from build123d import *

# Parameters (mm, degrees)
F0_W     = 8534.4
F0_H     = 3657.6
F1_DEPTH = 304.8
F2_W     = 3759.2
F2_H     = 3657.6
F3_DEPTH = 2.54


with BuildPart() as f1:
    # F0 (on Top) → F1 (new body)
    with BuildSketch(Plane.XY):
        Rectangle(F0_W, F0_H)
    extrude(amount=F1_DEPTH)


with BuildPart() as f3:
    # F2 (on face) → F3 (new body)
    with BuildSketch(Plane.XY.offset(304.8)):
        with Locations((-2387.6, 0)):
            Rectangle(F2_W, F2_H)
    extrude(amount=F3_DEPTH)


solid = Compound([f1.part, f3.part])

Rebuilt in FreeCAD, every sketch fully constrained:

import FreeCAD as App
import Part
import Sketcher

V = App.Vector
Q = App.Units.Quantity


def add_polygon(sketch, points):
    """Adds a closed chain of lines whose ends are joined by coincident constraints."""
    first, n = sketch.GeometryCount, len(points)
    for a, b in zip(points, points[1:] + points[:1]):
        sketch.addGeometry(Part.LineSegment(App.Vector(*a, 0), App.Vector(*b, 0)), False)
    for i in range(n):
        sketch.addConstraint(Sketcher.Constraint("Coincident", first + i, 2, first + (i + 1) % n, 1))

doc = App.newDocument("Part")
params = doc.addObject("Spreadsheet::Sheet", "Params")
for row, (alias, value) in enumerate([
    ("sketch1_width", "336 in"),
    ("sketch1_height", "144 in"),
    ("pad1_length", "12 in"),
    ("sketch2_width", "148 in"),
    ("sketch2_height", "144 in"),
    ("pad2_length", "0.1 in"),
], start=1):
    params.set(f"A{row}", alias)
    params.set(f"B{row}", "=" + value)
    params.setAlias(f"B{row}", alias)

body = doc.addObject("PartDesign::Body", "Body")

# Sketch on XY plane
sketch1 = body.newObject("Sketcher::SketchObject", "Sketch")
sketch1.AttachmentSupport = (doc.getObject("XY_Plane"), [""])
sketch1.MapMode = "FlatFace"
add_polygon(sketch1, [(-4267.2, 1828.8), (-4267.2, -1828.8), (4267.2, -1828.8), (4267.2, 1828.8)])  # lines 0-3
sketch1.addConstraint([
    Sketcher.Constraint("Vertical", 0),
    Sketcher.Constraint("Horizontal", 1),
    Sketcher.Constraint("Vertical", 2),
    Sketcher.Constraint("Horizontal", 3),
    Sketcher.Constraint("Symmetric", 0, 2, 2, 2, -1, 1),
    Sketcher.Constraint("DistanceX", 1, 1, 1, 2, Q("336 in")),
    Sketcher.Constraint("DistanceY", 0, 2, 0, 1, Q("144 in")),
])
sketch1.setExpression("Constraints[9]", "Params.sketch1_width")
sketch1.setExpression("Constraints[10]", "Params.sketch1_height")
pad1 = body.newObject("PartDesign::Pad", "Pad")
pad1.Profile = sketch1
pad1.setExpression("Length", "Params.pad1_length")
body2 = doc.addObject("PartDesign::Body", "Body001")

# Sketch on XY plane
sketch2 = body2.newObject("Sketcher::SketchObject", "Sketch001")
sketch2.AttachmentSupport = (doc.getObject("XY_Plane001"), [""])
sketch2.MapMode = "FlatFace"
sketch2.AttachmentOffset = App.Placement(V(0, 0, 12 * 25.4), App.Rotation())
add_polygon(sketch2, [(-4267.2, 1828.8), (-4267.2, -1828.8), (-508, -1828.8), (-508, 1828.8)])  # lines 0-3
sketch2.addConstraint([
    Sketcher.Constraint("Vertical", 0),
    Sketcher.Constraint("Horizontal", 1),
    Sketcher.Constraint("Vertical", 2),
    Sketcher.Constraint("Horizontal", 3),
    Sketcher.Constraint("DistanceX", 1, 1, 1, 2, Q("148 in")),
    Sketcher.Constraint("DistanceY", 0, 2, 0, 1, Q("144 in")),
    Sketcher.Constraint("DistanceX", 0, 2, -1, 1, Q("168 in")),
    Sketcher.Constraint("DistanceY", 0, 2, -1, 1, Q("72 in")),
])
sketch2.setExpression("Constraints[8]", "Params.sketch2_width")
sketch2.setExpression("Constraints[9]", "Params.sketch2_height")
pad2 = body2.newObject("PartDesign::Pad", "Pad001")
pad2.Profile = sketch2
pad2.setExpression("Length", "Params.pad2_length")

doc.recompute()
